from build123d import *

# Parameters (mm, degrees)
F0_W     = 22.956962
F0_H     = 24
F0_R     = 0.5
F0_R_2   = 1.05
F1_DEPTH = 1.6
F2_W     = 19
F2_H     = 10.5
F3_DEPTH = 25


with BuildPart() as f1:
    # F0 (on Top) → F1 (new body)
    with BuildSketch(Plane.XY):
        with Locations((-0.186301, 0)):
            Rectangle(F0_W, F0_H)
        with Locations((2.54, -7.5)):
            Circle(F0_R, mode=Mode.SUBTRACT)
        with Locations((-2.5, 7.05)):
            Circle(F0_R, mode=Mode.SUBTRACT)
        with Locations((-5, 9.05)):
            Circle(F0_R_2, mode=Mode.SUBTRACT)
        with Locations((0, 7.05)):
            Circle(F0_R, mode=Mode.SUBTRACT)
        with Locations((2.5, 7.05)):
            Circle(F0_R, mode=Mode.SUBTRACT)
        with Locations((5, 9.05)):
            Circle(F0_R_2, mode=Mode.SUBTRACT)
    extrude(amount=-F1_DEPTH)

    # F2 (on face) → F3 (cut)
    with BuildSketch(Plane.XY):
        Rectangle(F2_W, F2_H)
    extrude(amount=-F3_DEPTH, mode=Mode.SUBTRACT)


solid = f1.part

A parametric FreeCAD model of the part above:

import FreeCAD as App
import Part
import Sketcher

V = App.Vector

doc = App.newDocument("Part")
body = doc.addObject("PartDesign::Body", "Body")

# Sketch on XY plane
sketch1 = doc.addObject("Sketcher::SketchObject", "Sketch")
body.addObject(sketch1)
sketch1.AttachmentSupport = (doc.XY_Plane, [""])
sketch1.MapMode = "FlatFace"
sketch1.addGeometry([
    Part.LineSegment(V(-11.7, 12, 0), V(-11.7, -12, 0)),  # 0
    Part.LineSegment(V(-11.7, -12, 0), V(11.3, -12, 0)),  # 1
    Part.LineSegment(V(11.3, -12, 0), V(11.3, 12, 0)),  # 2
    Part.LineSegment(V(11.3, 12, 0), V(-11.7, 12, 0)),  # 3
    Part.Circle(V(2.5, -7.5, 0), V(0, 0, 1), 0.5),  # 4
    Part.Circle(V(-5, 9.1, 0), V(0, 0, 1), 1.1),  # 5
    Part.Circle(V(-2.5, 7, 0), V(0, 0, 1), 0.5),  # 6
    Part.Circle(V(0, 7, 0), V(0, 0, 1), 0.5),  # 7
    Part.Circle(V(2.5, 7, 0), V(0, 0, 1), 0.5),  # 8
    Part.Circle(V(5, 9.1, 0), V(0, 0, 1), 1.1),  # 9
], False)
sketch1.addConstraint([
    Sketcher.Constraint("Coincident", 0, 2, 1, 1),
    Sketcher.Constraint("Coincident", 1, 2, 2, 1),
    Sketcher.Constraint("Coincident", 2, 2, 3, 1),
    Sketcher.Constraint("Coincident", 3, 2, 0, 1),
    Sketcher.Constraint("Vertical", 0),
    Sketcher.Constraint("Horizontal", 1),
    Sketcher.Constraint("Vertical", 2),
    Sketcher.Constraint("Horizontal", 3),
    Sketcher.Constraint("Equal", 4, 6),
    Sketcher.Constraint("Equal", 6, 7),
    Sketcher.Constraint("Equal", 7, 8),
    Sketcher.Constraint("Equal", 5, 9),
    Sketcher.Constraint("Symmetric", 6, 3, 8, 3, -2),
    Sketcher.Constraint("Symmetric", 5, 3, 9, 3, -2),
    Sketcher.Constraint("PointOnObject", 7, 3, -2),
    Sketcher.Constraint("Horizontal", 6, 3, 7, 3),
    Sketcher.Constraint("Diameter", 4, 1.0),
    Sketcher.Constraint("Diameter", 5, 2.1),
    Sketcher.Constraint("DistanceY", 0, 2, 0, 1, 24.0),
    Sketcher.Constraint("DistanceX", 5, 3, -1, 1, 5.0),
    Sketcher.Constraint("DistanceY", 0, 2, -1, 1, 12.0),
    Sketcher.Constraint("DistanceY", 6, 3, 5, 3, 2.0),
    Sketcher.Constraint("DistanceX", 6, 3, 8, 3, 5.0),
    Sketcher.Constraint("DistanceY", 4, 3, -1, 1, 7.5),
    Sketcher.Constraint("DistanceX", -1, 1, 4, 3, 2.54),
    Sketcher.Constraint("DistanceY", -1, 1, 5, 3, 9.05),
    Sketcher.Constraint("DistanceX", 1, 1, 1, 2, 22.956962),
    Sketcher.Constraint("DistanceX", -1, 1, 1, 2, 11.29218),
])
pad1 = doc.addObject("PartDesign::Pad", "Pad")
body.addObject(pad1)
pad1.Profile = sketch1
pad1.Length = 1.6
pad1.Reversed = True

# Sketch on XY plane
sketch2 = doc.addObject("Sketcher::SketchObject", "Sketch001")
body.addObject(sketch2)
sketch2.AttachmentSupport = (doc.XY_Plane, [""])
sketch2.MapMode = "FlatFace"
sketch2.addGeometry([
    Part.LineSegment(V(-10, 5, 0), V(-10, -5, 0)),
    Part.LineSegment(V(-10, -5, 0), V(10, -5, 0)),
    Part.LineSegment(V(10, -5, 0), V(10, 5, 0)),
    Part.LineSegment(V(10, 5, 0), V(-10, 5, 0)),
], False)
sketch2.addConstraint([
    Sketcher.Constraint("Coincident", 0, 2, 1, 1),
    Sketcher.Constraint("Coincident", 1, 2, 2, 1),
    Sketcher.Constraint("Coincident", 2, 2, 3, 1),
    Sketcher.Constraint("Coincident", 3, 2, 0, 1),
    Sketcher.Constraint("Vertical", 0),
    Sketcher.Constraint("Horizontal", 1),
    Sketcher.Constraint("Vertical", 2),
    Sketcher.Constraint("Horizontal", 3),
    Sketcher.Constraint("Symmetric", 0, 2, 2, 2, -1, 1),
    Sketcher.Constraint("DistanceX", 1, 1, 1, 2, 19.0),
    Sketcher.Constraint("DistanceY", 0, 2, 0, 1, 10.5),
])
pocket1 = doc.addObject("PartDesign::Pocket", "Pocket")
body.addObject(pocket1)
pocket1.Profile = sketch2
pocket1.Length = 25

doc.recompute()
